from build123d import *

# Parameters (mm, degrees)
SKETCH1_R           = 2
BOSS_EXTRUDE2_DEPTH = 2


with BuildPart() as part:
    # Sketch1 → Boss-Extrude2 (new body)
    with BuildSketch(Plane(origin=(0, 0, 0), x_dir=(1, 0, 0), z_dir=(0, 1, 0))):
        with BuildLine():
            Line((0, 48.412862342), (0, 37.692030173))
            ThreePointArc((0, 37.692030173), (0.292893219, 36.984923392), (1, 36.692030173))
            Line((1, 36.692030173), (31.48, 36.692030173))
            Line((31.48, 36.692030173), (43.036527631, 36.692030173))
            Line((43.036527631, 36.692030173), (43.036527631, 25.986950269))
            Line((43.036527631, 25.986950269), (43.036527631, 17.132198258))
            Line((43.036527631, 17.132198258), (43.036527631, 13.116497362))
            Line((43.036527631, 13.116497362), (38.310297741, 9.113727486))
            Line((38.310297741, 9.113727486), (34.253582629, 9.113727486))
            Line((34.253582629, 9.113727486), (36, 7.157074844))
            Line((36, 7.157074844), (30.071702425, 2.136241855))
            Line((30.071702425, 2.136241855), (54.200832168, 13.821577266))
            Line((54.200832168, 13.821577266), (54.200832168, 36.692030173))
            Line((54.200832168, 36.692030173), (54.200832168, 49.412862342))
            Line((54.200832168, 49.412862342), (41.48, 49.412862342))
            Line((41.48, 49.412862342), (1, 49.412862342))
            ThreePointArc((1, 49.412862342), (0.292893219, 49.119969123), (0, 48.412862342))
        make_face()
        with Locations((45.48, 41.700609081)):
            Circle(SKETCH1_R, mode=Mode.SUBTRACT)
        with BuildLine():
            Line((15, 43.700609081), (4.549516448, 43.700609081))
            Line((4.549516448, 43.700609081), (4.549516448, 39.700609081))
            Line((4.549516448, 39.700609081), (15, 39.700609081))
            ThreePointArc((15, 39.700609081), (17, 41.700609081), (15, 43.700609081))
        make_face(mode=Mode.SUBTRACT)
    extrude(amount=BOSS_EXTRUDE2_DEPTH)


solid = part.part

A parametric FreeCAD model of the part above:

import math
import FreeCAD as App
import Part
import Sketcher

doc = App.newDocument("Part")
params = doc.addObject("Spreadsheet::Sheet", "Params")
for row, (alias, value) in enumerate([
    ("sketch1_diameter", "4 mm"),
    ("sketch1_radius", "1 mm"),
    ("pad1_length", "2 mm"),
], start=1):
    params.set(f"A{row}", alias)
    params.set(f"B{row}", "=" + value)
    params.setAlias(f"B{row}", alias)

body = doc.addObject("PartDesign::Body", "Body")

sketch1 = doc.addObject("Sketcher::SketchObject", "Sketch")
body.addObject(sketch1)
sketch1.AttachmentSupport = (doc.XZ_Plane, [""])
sketch1.MapMode = "FlatFace"
sketch1.addGeometry([
    Part.LineSegment(App.Vector(0, -48.412862, 0), App.Vector(0, -37.69203, 0)),
    Part.ArcOfCircle(Part.Circle(App.Vector(1, -37.69203, 0), App.Vector(0, 0, 1), 1), math.radians(90), math.radians(180)),
    Part.LineSegment(App.Vector(1, -36.69203, 0), App.Vector(43.036528, -36.69203, 0)),
    Part.LineSegment(App.Vector(43.036528, -36.69203, 0), App.Vector(43.036528, -13.116497, 0)),
    Part.LineSegment(App.Vector(43.036528, -13.116497, 0), App.Vector(38.310298, -9.113727, 0)),
    Part.LineSegment(App.Vector(38.310298, -9.113727, 0), App.Vector(34.253583, -9.113727, 0)),
    Part.LineSegment(App.Vector(34.253583, -9.113727, 0), App.Vector(36, -7.157075, 0)),
    Part.LineSegment(App.Vector(36, -7.157075, 0), App.Vector(30.071702, -2.136242, 0)),
    Part.LineSegment(App.Vector(30.071702, -2.136242, 0), App.Vector(54.200832, -13.821577, 0)),
    Part.LineSegment(App.Vector(54.200832, -13.821577, 0), App.Vector(54.200832, -49.412862, 0)),
    Part.LineSegment(App.Vector(54.200832, -49.412862, 0), App.Vector(1, -49.412862, 0)),
    Part.ArcOfCircle(Part.Circle(App.Vector(1, -48.412862, 0), App.Vector(0, 0, 1), 1), math.radians(-180), math.radians(-90)),
    Part.LineSegment(App.Vector(4.549516, -43.700609, 0), App.Vector(15, -43.700609, 0)),
    Part.ArcOfCircle(Part.Circle(App.Vector(15, -41.700609, 0), App.Vector(0, 0, 1), 2), math.radians(-90), math.radians(90)),
    Part.LineSegment(App.Vector(15, -39.700609, 0), App.Vector(4.549516, -39.700609, 0)),
    Part.LineSegment(App.Vector(4.549516, -39.700609, 0), App.Vector(4.549516, -43.700609, 0)),
    Part.Circle(App.Vector(45.48, -41.700609, 0), App.Vector(0, 0, 1), 2),
], False)
sketch1.addConstraint([
    Sketcher.Constraint("Tangent", 0, 2, 1, 2),
    Sketcher.Constraint("Tangent", 1, 1, 2, 1),
    Sketcher.Constraint("Coincident", 2, 2, 3, 1),
    Sketcher.Constraint("Coincident", 3, 2, 4, 1),
    Sketcher.Constraint("Coincident", 4, 2, 5, 1),
    Sketcher.Constraint("Coincident", 5, 2, 6, 1),
    Sketcher.Constraint("Coincident", 6, 2, 7, 1),
    Sketcher.Constraint("Coincident", 7, 2, 8, 1),
    Sketcher.Constraint("Coincident", 8, 2, 9, 1),
    Sketcher.Constraint("Coincident", 9, 2, 10, 1),
    Sketcher.Constraint("Tangent", 10, 2, 11, 2),
    Sketcher.Constraint("Tangent", 11, 1, 0, 1),
    Sketcher.Constraint("Tangent", 12, 2, 13, 1),
    Sketcher.Constraint("Tangent", 13, 2, 14, 1),
    Sketcher.Constraint("Coincident", 14, 2, 15, 1),
    Sketcher.Constraint("Coincident", 15, 2, 12, 1),
    Sketcher.Constraint("Vertical", 0),
    Sketcher.Constraint("Horizontal", 2),
    Sketcher.Constraint("Vertical", 3),
    Sketcher.Constraint("Horizontal", 5),
    Sketcher.Constraint("Vertical", 9),
    Sketcher.Constraint("Horizontal", 10),
    Sketcher.Constraint("Horizontal", 12),
    Sketcher.Constraint("Horizontal", 14),
    Sketcher.Constraint("Vertical", 15),
    Sketcher.Constraint("Equal", 1, 11),
    Sketcher.Constraint("Equal", 13, 16),
    Sketcher.Constraint("PointOnObject", 0, 2, -2),
    Sketcher.Constraint("Parallel", 4, 7),
    Sketcher.Constraint("Horizontal", 13, 3, 16, 3),
    Sketcher.Constraint("Diameter", 16, 4.0),
    Sketcher.Constraint("Radius", 1, 1.0),
    Sketcher.Constraint("DistanceX", -1, 1, 13, 3, 15.0),
    Sketcher.Constraint("DistanceX", -1, 1, 6, 2, 36.0),
    Sketcher.Constraint("DistanceX", -1, 1, 16, 3, 45.48),
    Sketcher.Constraint("Distance", 7, 7.76875),
    Sketcher.Constraint("DistanceX", 2, 1, 2, 2, 42.036528),
    Sketcher.Constraint("DistanceX", 5, 2, 5, 1, 4.056715),
    Sketcher.Constraint("DistanceX", 10, 2, 10, 1, 53.200832),
    Sketcher.Constraint("DistanceX", 12, 1, 12, 2, 10.450484),
    Sketcher.Constraint("DistanceY", 0, 1, 0, 2, 10.720832),
    Sketcher.Constraint("DistanceY", 3, 1, 3, 2, 23.575533),
    Sketcher.Constraint("DistanceY", 9, 2, 9, 1, 35.591285),
    Sketcher.Constraint("DistanceY", 1, 3, -1, 1, 37.69203),
    Sketcher.Constraint("DistanceY", 13, 3, -1, 1, 41.700609),
    Sketcher.Constraint("DistanceY", 7, 2, -1, 1, 2.136242),
    Sketcher.Constraint("DistanceX", 4, 2, 3, 2, 4.72623),
    Sketcher.Constraint("DistanceY", 3, 2, 4, 2, 4.00277),
])
sketch1.setExpression("Constraints[30]", "Params.sketch1_diameter")
sketch1.setExpression("Constraints[31]", "Params.sketch1_radius")
pad1 = doc.addObject("PartDesign::Pad", "Pad")
body.addObject(pad1)
pad1.Profile = sketch1
pad1.setExpression("Length", "Params.pad1_length")
pad1.Reversed = True

doc.recompute()
